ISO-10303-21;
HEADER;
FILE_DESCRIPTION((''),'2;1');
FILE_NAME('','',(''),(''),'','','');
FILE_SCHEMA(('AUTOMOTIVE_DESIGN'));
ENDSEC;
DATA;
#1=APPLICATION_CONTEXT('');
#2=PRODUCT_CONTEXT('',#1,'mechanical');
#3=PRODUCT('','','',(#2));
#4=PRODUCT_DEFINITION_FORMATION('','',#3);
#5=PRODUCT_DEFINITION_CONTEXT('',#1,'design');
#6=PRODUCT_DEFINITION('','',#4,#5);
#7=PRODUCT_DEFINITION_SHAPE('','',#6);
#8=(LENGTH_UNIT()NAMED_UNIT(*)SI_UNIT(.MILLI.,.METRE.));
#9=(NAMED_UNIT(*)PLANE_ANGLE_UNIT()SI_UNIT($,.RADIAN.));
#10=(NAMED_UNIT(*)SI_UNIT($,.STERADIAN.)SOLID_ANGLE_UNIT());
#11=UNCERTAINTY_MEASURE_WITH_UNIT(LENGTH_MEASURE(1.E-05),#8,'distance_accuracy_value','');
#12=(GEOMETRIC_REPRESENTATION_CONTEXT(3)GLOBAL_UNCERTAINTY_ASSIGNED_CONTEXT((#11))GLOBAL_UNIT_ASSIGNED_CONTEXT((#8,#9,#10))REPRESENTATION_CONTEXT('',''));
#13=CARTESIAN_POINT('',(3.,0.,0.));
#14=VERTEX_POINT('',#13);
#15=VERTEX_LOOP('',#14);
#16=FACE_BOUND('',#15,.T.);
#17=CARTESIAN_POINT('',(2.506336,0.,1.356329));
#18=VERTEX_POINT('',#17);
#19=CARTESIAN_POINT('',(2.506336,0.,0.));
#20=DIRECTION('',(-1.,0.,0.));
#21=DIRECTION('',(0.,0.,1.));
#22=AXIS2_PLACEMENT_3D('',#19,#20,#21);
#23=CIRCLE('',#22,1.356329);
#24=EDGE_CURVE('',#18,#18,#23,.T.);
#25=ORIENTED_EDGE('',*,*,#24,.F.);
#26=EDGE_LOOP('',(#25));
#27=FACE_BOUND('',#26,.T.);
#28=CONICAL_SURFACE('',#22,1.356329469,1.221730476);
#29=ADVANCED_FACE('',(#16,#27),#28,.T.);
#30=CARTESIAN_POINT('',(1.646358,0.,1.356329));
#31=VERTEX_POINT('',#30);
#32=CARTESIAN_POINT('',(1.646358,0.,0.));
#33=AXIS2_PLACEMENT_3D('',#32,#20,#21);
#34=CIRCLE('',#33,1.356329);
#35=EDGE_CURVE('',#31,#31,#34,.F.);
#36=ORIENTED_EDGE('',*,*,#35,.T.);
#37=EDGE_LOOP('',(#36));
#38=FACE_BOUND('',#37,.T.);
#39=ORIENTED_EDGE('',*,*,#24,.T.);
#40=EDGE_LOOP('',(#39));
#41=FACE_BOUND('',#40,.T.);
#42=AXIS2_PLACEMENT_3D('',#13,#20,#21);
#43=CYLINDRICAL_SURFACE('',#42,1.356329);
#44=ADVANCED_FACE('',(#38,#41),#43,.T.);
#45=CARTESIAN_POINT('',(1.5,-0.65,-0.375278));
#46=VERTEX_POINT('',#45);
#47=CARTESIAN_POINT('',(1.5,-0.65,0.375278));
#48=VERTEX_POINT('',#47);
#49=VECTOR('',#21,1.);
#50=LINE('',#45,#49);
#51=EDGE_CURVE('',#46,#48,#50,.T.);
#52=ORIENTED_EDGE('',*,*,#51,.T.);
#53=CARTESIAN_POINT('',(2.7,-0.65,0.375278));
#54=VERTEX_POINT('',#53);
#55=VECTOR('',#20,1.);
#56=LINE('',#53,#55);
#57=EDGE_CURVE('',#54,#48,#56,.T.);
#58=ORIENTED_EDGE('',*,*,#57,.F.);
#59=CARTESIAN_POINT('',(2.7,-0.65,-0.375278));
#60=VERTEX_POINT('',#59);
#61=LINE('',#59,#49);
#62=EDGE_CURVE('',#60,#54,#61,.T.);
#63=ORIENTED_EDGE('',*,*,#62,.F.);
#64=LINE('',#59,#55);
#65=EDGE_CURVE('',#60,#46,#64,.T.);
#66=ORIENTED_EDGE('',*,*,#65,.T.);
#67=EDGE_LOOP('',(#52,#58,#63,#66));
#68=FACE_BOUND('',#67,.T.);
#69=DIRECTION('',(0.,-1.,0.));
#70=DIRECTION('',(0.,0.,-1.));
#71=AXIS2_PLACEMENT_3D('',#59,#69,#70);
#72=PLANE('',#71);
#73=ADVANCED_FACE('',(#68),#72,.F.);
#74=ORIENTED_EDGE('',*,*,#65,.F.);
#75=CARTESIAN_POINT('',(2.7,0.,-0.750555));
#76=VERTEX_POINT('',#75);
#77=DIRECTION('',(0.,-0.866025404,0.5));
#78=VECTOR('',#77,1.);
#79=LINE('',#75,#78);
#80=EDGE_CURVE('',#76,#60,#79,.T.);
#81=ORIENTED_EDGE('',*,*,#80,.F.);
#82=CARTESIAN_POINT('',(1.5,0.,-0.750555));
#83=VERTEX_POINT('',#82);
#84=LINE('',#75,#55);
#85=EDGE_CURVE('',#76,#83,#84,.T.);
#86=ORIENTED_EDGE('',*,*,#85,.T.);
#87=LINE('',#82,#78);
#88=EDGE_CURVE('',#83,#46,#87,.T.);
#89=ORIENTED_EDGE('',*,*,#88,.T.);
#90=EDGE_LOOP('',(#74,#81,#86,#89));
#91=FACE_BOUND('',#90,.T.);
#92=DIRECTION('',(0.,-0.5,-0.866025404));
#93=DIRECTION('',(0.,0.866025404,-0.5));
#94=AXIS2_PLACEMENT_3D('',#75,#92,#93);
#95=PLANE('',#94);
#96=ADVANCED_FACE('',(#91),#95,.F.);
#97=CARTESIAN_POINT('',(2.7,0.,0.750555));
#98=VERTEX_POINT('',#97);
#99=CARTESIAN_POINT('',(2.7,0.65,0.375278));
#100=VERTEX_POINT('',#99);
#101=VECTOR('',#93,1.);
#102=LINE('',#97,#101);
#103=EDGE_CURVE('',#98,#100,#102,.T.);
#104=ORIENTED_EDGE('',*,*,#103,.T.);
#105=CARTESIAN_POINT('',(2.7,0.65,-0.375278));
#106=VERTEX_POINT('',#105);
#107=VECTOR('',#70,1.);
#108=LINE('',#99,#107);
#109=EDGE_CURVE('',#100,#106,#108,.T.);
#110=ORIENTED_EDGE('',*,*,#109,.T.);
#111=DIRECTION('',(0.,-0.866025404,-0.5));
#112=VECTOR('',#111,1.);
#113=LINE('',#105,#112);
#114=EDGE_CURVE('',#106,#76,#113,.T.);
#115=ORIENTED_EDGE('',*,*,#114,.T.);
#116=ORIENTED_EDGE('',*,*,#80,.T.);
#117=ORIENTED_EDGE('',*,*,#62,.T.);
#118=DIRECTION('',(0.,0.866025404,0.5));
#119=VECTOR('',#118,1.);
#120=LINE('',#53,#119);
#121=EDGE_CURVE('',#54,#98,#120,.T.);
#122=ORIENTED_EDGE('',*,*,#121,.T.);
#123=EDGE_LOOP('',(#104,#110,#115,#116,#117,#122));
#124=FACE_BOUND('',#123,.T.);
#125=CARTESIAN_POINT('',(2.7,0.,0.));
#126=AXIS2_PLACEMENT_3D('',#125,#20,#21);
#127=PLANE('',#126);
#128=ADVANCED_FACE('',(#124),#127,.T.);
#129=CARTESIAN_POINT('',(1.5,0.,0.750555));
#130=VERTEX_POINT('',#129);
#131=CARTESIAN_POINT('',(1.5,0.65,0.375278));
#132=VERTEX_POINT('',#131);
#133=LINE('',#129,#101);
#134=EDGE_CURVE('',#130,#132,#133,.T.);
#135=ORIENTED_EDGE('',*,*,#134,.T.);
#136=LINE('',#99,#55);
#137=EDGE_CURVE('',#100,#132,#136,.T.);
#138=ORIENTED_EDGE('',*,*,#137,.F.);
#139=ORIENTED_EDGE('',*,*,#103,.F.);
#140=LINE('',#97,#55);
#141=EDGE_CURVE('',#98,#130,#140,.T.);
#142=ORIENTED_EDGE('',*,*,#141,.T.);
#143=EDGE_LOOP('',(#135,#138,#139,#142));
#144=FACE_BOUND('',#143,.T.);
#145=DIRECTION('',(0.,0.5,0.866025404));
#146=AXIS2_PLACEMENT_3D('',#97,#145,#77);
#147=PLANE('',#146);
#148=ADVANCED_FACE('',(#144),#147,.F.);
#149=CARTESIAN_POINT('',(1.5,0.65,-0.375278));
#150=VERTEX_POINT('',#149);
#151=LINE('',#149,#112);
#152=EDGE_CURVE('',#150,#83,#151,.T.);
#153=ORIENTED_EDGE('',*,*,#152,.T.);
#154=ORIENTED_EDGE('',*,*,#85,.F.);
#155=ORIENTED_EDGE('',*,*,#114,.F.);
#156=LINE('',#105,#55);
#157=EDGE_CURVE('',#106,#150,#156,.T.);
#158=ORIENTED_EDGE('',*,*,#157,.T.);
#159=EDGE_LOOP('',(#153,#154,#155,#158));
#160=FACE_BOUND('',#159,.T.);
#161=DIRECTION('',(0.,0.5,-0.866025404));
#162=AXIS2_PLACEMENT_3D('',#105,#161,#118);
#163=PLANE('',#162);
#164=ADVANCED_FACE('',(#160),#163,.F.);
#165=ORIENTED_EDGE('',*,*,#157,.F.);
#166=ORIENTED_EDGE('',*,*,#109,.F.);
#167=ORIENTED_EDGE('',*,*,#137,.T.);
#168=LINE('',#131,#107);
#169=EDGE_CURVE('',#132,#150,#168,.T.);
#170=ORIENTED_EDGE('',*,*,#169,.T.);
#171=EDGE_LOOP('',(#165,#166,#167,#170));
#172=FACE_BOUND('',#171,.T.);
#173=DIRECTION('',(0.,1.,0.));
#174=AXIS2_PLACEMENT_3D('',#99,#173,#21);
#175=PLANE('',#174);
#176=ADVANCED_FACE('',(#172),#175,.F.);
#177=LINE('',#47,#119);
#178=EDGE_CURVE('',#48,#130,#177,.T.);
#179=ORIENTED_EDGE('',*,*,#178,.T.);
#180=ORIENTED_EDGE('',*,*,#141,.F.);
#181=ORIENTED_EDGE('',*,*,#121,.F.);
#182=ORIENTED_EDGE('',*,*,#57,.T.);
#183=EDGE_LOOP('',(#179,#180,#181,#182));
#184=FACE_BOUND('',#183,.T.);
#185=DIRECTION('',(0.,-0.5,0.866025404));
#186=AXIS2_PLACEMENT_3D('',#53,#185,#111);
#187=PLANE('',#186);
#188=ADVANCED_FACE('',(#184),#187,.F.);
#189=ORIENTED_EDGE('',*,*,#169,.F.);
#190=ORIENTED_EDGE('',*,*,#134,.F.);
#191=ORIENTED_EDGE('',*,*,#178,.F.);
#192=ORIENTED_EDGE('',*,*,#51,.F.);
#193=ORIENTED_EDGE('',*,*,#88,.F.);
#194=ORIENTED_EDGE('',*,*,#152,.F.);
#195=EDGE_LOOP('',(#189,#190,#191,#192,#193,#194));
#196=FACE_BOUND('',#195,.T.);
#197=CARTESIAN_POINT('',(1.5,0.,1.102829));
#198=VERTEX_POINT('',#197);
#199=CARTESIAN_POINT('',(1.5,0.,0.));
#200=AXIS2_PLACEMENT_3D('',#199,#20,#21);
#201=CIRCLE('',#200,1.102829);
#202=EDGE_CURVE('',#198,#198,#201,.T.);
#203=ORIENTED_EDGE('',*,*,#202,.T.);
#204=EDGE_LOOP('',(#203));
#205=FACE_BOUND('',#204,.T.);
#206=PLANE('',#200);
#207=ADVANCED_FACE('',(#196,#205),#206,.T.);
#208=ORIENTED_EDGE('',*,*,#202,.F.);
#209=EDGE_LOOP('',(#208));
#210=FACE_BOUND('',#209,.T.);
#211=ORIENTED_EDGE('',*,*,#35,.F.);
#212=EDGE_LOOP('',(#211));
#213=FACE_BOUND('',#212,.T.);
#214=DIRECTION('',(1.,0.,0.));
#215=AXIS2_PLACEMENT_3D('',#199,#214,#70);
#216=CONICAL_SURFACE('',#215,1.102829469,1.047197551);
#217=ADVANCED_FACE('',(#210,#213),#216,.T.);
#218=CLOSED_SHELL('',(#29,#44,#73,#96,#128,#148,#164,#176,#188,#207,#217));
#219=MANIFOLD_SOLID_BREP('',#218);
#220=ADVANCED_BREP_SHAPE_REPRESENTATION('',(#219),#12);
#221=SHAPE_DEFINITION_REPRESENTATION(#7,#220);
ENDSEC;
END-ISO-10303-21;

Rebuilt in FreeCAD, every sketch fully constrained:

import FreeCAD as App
import Part
import Sketcher
from FreeCAD import Vector
Q = App.Units.Quantity


def edges_at(feature, points):
    """Names of the edges that pass closest to the given points."""
    edges = feature.Shape.Edges
    near = lambda p: min(range(len(edges)), key=lambda i: edges[i].distToShape(Part.Vertex(*p))[0])
    return sorted({f"Edge{near(p) + 1}" for p in points})


def add_polygon(sketch, points):
    """Adds a closed chain of lines whose ends are joined by coincident constraints."""
    first, n = sketch.GeometryCount, len(points)
    for a, b in zip(points, points[1:] + points[:1]):
        sketch.addGeometry(Part.LineSegment(App.Vector(*a, 0), App.Vector(*b, 0)), False)
    for i in range(n):
        sketch.addConstraint(Sketcher.Constraint("Coincident", first + i, 2, first + (i + 1) % n, 1))

doc = App.newDocument("Part")
body = doc.addObject("PartDesign::Body", "Body")

# Sketch on XY plane
sketch1 = body.newObject("Sketcher::SketchObject", "Sketch")
sketch1.AttachmentSupport = (doc.getObject("XY_Plane"), [""])
sketch1.MapMode = "FlatFace"
add_polygon(sketch1, [(2.5, 1.4), (3, 0), (1.5, 0), (1.5, 1.4)])  # lines 0-3
sketch1.addConstraint([
    Sketcher.Constraint("Horizontal", 1),
    Sketcher.Constraint("Vertical", 2),
    Sketcher.Constraint("Horizontal", 3),
    Sketcher.Constraint("PointOnObject", 0, 2, -1),
    Sketcher.Constraint("Angle", 0, Q("-70 deg")),
    Sketcher.Constraint("DistanceX", 1, 2, 1, 1, Q("1.5 mm")),
    Sketcher.Constraint("DistanceX", -1, 1, 0, 2, Q("3 mm")),
    Sketcher.Constraint("DistanceY", 2, 1, 2, 2, Q("1.356329 mm")),
])
revolution = body.newObject("PartDesign::Revolution", "Revolution")
revolution.Profile = sketch1
revolution.ReferenceAxis = (sketch1, ["H_Axis"])
revolution.Angle = 360

# Sketch on YZ plane
sketch2 = body.newObject("Sketcher::SketchObject", "Sketch001")
sketch2.AttachmentSupport = (doc.getObject("YZ_Plane"), [""])
sketch2.MapMode = "FlatFace"
sketch2.AttachmentOffset = App.Placement(Vector(0, 0, 1.5), App.Rotation())
add_polygon(sketch2, [(-0.7, 0.4), (0, 0.8), (0.7, 0.4), (0.7, -0.4), (0, -0.8), (-0.7, -0.4)])  # lines 0-5
sketch2.addConstraint([
    Sketcher.Constraint("Vertical", 2),
    Sketcher.Constraint("Vertical", 5),
    Sketcher.Constraint("Symmetric", 0, 2, 3, 2, -1, 1),
    Sketcher.Constraint("Symmetric", 1, 2, 4, 2, -1, 1),
    Sketcher.Constraint("PointOnObject", 0, 2, -2),
    Sketcher.Constraint("Parallel", 0, 3),
    Sketcher.Constraint("Horizontal", 2, 2, 4, 2),
    Sketcher.Constraint("Angle", 0, Q("30 deg")),
    Sketcher.Constraint("DistanceX", 4, 2, 2, 2, Q("1.3 mm")),
    Sketcher.Constraint("DistanceY", 2, 2, 2, 1, Q("0.750555 mm")),
])
pocket1 = body.newObject("PartDesign::Pocket", "Pocket")
pocket1.Profile = sketch2
pocket1.Length = 1.2
pocket1.Reversed = True
doc.recompute()

chamfer = body.newObject("PartDesign::Chamfer", "Chamfer")
chamfer.Base = (pocket1, edges_at(pocket1, [(1.5, -1.356, 0)]))
chamfer.ChamferType = "Two distances"
chamfer.Size = 0.2535
chamfer.Size2 = 0.146358
chamfer.FlipDirection = True

doc.recompute()
